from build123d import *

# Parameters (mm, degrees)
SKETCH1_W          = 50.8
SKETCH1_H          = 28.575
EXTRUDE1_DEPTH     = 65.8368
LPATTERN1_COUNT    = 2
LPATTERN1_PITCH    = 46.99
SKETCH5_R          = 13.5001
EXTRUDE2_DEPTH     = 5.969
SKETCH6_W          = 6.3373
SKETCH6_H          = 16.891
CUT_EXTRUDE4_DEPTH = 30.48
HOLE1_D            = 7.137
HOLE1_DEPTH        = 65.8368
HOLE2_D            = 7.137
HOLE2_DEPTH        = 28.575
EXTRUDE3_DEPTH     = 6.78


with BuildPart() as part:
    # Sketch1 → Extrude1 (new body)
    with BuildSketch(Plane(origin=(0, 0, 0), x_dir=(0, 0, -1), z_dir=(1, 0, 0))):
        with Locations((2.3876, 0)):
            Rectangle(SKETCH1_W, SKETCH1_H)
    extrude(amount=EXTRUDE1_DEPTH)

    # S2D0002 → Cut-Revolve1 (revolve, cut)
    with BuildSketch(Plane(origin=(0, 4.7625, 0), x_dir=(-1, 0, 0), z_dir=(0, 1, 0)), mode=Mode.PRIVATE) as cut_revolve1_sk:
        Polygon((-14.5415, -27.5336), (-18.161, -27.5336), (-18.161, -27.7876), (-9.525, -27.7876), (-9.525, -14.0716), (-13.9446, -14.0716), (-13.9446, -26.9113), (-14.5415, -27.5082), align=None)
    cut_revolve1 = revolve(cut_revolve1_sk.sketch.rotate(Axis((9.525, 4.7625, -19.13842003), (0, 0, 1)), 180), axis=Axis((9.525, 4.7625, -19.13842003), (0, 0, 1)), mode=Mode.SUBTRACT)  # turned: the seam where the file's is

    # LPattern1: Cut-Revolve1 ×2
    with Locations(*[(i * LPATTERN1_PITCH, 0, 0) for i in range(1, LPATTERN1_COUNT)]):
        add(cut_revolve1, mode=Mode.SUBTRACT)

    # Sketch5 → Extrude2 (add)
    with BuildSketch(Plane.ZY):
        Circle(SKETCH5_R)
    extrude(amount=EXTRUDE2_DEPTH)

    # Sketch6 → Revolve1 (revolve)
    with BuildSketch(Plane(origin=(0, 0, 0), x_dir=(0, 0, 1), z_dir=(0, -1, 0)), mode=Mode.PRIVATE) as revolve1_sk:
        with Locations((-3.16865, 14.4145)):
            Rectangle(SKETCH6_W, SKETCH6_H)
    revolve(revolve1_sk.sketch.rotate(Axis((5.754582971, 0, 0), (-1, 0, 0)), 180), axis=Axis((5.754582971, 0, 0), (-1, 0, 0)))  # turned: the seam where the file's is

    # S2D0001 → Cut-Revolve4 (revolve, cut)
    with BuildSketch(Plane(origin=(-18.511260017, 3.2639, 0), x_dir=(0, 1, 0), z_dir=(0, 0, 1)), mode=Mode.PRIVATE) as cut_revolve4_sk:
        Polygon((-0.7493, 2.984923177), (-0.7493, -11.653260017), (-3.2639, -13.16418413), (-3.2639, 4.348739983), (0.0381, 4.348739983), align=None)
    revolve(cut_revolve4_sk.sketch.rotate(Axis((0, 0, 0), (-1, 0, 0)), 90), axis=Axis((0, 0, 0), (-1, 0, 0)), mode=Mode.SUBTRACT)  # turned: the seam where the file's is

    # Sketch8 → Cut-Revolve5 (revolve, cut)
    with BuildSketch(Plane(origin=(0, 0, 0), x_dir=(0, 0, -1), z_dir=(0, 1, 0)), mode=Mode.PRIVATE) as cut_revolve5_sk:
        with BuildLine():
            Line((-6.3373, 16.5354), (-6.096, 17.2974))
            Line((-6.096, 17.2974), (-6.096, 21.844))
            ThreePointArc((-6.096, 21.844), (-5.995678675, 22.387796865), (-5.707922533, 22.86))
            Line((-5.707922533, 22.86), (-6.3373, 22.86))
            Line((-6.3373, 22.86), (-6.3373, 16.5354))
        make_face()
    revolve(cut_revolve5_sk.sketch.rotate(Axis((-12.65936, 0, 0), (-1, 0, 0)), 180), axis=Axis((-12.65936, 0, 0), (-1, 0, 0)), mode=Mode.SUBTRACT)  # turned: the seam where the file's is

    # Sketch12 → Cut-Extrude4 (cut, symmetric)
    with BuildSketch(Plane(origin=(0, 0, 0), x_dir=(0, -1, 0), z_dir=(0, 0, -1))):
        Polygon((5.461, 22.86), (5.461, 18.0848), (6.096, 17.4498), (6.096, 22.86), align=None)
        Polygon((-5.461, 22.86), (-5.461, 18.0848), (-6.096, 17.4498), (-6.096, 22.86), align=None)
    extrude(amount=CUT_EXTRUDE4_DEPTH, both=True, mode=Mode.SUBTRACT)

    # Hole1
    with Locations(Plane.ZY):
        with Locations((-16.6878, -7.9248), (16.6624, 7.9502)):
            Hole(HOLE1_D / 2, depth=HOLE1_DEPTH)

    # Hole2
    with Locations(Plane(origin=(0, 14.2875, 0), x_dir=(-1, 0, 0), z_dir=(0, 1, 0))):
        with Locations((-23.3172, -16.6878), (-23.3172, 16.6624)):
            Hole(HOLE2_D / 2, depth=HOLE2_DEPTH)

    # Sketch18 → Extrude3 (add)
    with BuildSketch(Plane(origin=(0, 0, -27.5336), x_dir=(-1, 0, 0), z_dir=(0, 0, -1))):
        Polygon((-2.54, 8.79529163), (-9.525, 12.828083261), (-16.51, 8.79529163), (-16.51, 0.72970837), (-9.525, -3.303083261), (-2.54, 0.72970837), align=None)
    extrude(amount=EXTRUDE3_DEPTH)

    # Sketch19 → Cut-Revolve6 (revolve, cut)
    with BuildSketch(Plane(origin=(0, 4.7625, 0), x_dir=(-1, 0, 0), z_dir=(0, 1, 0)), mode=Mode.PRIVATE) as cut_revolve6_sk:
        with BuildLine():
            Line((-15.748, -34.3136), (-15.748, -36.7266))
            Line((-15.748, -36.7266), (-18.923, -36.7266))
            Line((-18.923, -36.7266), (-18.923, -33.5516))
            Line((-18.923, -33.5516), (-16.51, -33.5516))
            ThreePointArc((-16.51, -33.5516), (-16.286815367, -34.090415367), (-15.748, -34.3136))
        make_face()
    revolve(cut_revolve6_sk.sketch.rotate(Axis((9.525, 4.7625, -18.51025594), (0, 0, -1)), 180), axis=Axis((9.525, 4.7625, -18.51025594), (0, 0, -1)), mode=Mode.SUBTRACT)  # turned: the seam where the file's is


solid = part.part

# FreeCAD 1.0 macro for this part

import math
import FreeCAD as App
import Part
import Sketcher

V = App.Vector
Q = App.Units.Quantity


def add_polygon(sketch, points):
    """Adds a closed chain of lines whose ends are joined by coincident constraints."""
    first, n = sketch.GeometryCount, len(points)
    for a, b in zip(points, points[1:] + points[:1]):
        sketch.addGeometry(Part.LineSegment(App.Vector(*a, 0), App.Vector(*b, 0)), False)
    for i in range(n):
        sketch.addConstraint(Sketcher.Constraint("Coincident", first + i, 2, first + (i + 1) % n, 1))

doc = App.newDocument("Part")
body = doc.addObject("PartDesign::Body", "Body")

sketch1 = body.newObject("Sketcher::SketchObject", "Sketch")
sketch1.AttachmentSupport = (doc.getObject("YZ_Plane"), [""])
sketch1.MapMode = "FlatFace"
add_polygon(sketch1, [(14.2875, 23.0124), (-14.2875, 23.0124), (-14.2875, -27.7876), (14.2875, -27.7876)])
sketch1.addConstraint(Sketcher.Constraint("Horizontal", 0))
sketch1.addConstraint(Sketcher.Constraint("Vertical", 1))
sketch1.addConstraint(Sketcher.Constraint("Horizontal", 2))
sketch1.addConstraint(Sketcher.Constraint("Vertical", 3))
sketch1.addConstraint(Sketcher.Constraint("DistanceY", 1, 2, 1, 1, Q("2 in")))
sketch1.addConstraint(Sketcher.Constraint("DistanceX", 0, 2, 0, 1, Q("1.125 in")))
sketch1.addConstraint(Sketcher.Constraint("DistanceX", 0, 2, -1, 1, Q("0.5625 in")))
sketch1.addConstraint(Sketcher.Constraint("DistanceY", -1, 1, 0, 2, Q("0.906 in")))
pad1 = body.newObject("PartDesign::Pad", "Pad")
pad1.Profile = sketch1
pad1.Length = Q("2.592 in")

sketch2 = body.newObject("Sketcher::SketchObject", "Sketch001")
sketch2.AttachmentSupport = (doc.getObject("XZ_Plane"), [""])
sketch2.MapMode = "FlatFace"
sketch2.AttachmentOffset = App.Placement(V(0, 0, -0.1875 * 25.4), App.Rotation())
add_polygon(sketch2, [(14.5415, -27.5336), (18.161, -27.5336), (18.161, -27.7876), (9.525, -27.7876), (9.525, -14.0716), (13.9446, -14.0716), (13.9446, -26.9113), (14.5415, -27.5082)])
sketch2.addGeometry(Part.LineSegment(V(9.525, -27.7876, 0), V(9.525, -14.0716, 0)), True)
sketch2.addConstraint(Sketcher.Constraint("Horizontal", 0))
sketch2.addConstraint(Sketcher.Constraint("Vertical", 1))
sketch2.addConstraint(Sketcher.Constraint("Horizontal", 2))
sketch2.addConstraint(Sketcher.Constraint("Vertical", 3))
sketch2.addConstraint(Sketcher.Constraint("Horizontal", 4))
sketch2.addConstraint(Sketcher.Constraint("Vertical", 5))
sketch2.addConstraint(Sketcher.Constraint("Vertical", 7))
sketch2.addConstraint(Sketcher.Constraint("Vertical", 8))
sketch2.addConstraint(Sketcher.Constraint("Coincident", 8, 1, 2, 2))
sketch2.addConstraint(Sketcher.Constraint("Horizontal", 4, 2, 8, 2))
sketch2.addConstraint(Sketcher.Constraint("Angle", 6, Q("-45 deg")))
sketch2.addConstraint(Sketcher.Constraint("DistanceX", 2, 2, 2, 1, Q("0.34 in")))
sketch2.addConstraint(Sketcher.Constraint("DistanceY", 1, 2, 1, 1, Q("0.01 in")))
sketch2.addConstraint(Sketcher.Constraint("DistanceY", 3, 1, 3, 2, Q("0.54 in")))
sketch2.addConstraint(Sketcher.Constraint("DistanceX", 4, 1, 4, 2, Q("0.174 in")))
sketch2.addConstraint(Sketcher.Constraint("DistanceY", 7, 2, 7, 1, Q("0.001 in")))
sketch2.addConstraint(Sketcher.Constraint("DistanceX", 0, 1, 0, 2, Q("0.1425 in")))
sketch2.addConstraint(Sketcher.Constraint("DistanceX", -1, 1, 0, 2, Q("0.715 in")))
sketch2.addConstraint(Sketcher.Constraint("DistanceY", 0, 2, -1, 1, Q("1.084 in")))
groove = body.newObject("PartDesign::Groove", "Groove")
groove.Profile = sketch2
groove.ReferenceAxis = (sketch2, ["Axis0"])
groove.Angle = 360
doc.recompute()

linearpattern = body.newObject("PartDesign::LinearPattern", "LinearPattern")
linearpattern.Originals = [groove]
linearpattern.Direction = (doc.getObject("X_Axis"), [""])
linearpattern.Mode = "offset"
linearpattern.Offset = Q("1.85 in")
linearpattern.Occurrences = 2
body.Tip = linearpattern

sketch3 = body.newObject("Sketcher::SketchObject", "Sketch002")
sketch3.AttachmentSupport = (doc.getObject("YZ_Plane"), [""])
sketch3.MapMode = "FlatFace"
sketch3.addGeometry(Part.Circle(V(0, 0, 0), V(0, 0, 1), 13.5001), False)
sketch3.addConstraint(Sketcher.Constraint("Coincident", 0, 3, -1, 1))
sketch3.addConstraint(Sketcher.Constraint("Diameter", 0, Q("1.063 in")))
pad2 = body.newObject("PartDesign::Pad", "Pad001")
pad2.Profile = sketch3
pad2.Length = Q("0.235 in")
pad2.Reversed = True

sketch4 = body.newObject("Sketcher::SketchObject", "Sketch003")
sketch4.AttachmentSupport = (doc.getObject("XZ_Plane"), [""])
sketch4.MapMode = "FlatFace"
add_polygon(sketch4, [(-22.86, -6.3373), (-5.969, -6.3373), (-5.969, 0), (-22.86, 0)])
sketch4.addConstraint(Sketcher.Constraint("Horizontal", 0))
sketch4.addConstraint(Sketcher.Constraint("Vertical", 1))
sketch4.addConstraint(Sketcher.Constraint("Horizontal", 2))
sketch4.addConstraint(Sketcher.Constraint("Vertical", 3))
sketch4.addConstraint(Sketcher.Constraint("PointOnObject", 1, 2, -1))
sketch4.addConstraint(Sketcher.Constraint("DistanceX", 2, 2, -1, 1, Q("0.9 in")))
sketch4.addConstraint(Sketcher.Constraint("DistanceX", 0, 1, 0, 2, Q("0.665 in")))
sketch4.addConstraint(Sketcher.Constraint("DistanceY", 1, 1, 1, 2, Q("0.2495 in")))
revolution = body.newObject("PartDesign::Revolution", "Revolution")
revolution.Profile = sketch4
revolution.ReferenceAxis = (sketch4, ["H_Axis"])
revolution.Angle = 360

sketch5 = body.newObject("Sketcher::SketchObject", "Sketch004")
sketch5.AttachmentSupport = (doc.getObject("XY_Plane"), [""])
sketch5.MapMode = "FlatFace"
add_polygon(sketch5, [(-6.858, 2.5146), (-21.496183, 2.5146), (-22.86, 3.302), (-22.86, 0), (-5.347076, 0)])
sketch5.addConstraint(Sketcher.Constraint("Horizontal", 0))
sketch5.addConstraint(Sketcher.Constraint("Vertical", 2))
sketch5.addConstraint(Sketcher.Constraint("Horizontal", 3))
sketch5.addConstraint(Sketcher.Constraint("PointOnObject", 2, 2, -1))
sketch5.addConstraint(Sketcher.Constraint("Angle", 1, Q("150 deg")))
sketch5.addConstraint(Sketcher.Constraint("Angle", 4, Q("121 deg")))
sketch5.addConstraint(Sketcher.Constraint("DistanceY", 2, 2, 2, 1, Q("0.13 in")))
sketch5.addConstraint(Sketcher.Constraint("DistanceX", 1, 2, -1, 1, Q("0.9 in")))
sketch5.addConstraint(Sketcher.Constraint("DistanceX", 4, 2, -1, 1, Q("0.27 in")))
sketch5.addConstraint(Sketcher.Constraint("Distance", 1, Q("0.062 in")))
groove2 = body.newObject("PartDesign::Groove", "Groove001")
groove2.Profile = sketch5
groove2.ReferenceAxis = (sketch5, ["H_Axis"])
groove2.Angle = 360

sketch6 = body.newObject("Sketcher::SketchObject", "Sketch005")
sketch6.AttachmentSupport = (doc.getObject("XZ_Plane"), [""])
sketch6.MapMode = "FlatFace"
sketch6.addGeometry(Part.LineSegment(V(-16.5354, 6.3373, 0), V(-17.2974, 6.096, 0)), False)
sketch6.addGeometry(Part.LineSegment(V(-17.2974, 6.096, 0), V(-21.844, 6.096, 0)), False)
sketch6.addGeometry(Part.ArcOfCircle(Part.Circle(V(-21.844, 4.572, 0), V(0, 0, 1), 1.524), math.radians(90), math.radians(131.810315)), False)
sketch6.addGeometry(Part.LineSegment(V(-22.86, 5.707923, 0), V(-22.86, 6.3373, 0)), False)
sketch6.addGeometry(Part.LineSegment(V(-22.86, 6.3373, 0), V(-16.5354, 6.3373, 0)), False)
sketch6.addConstraint(Sketcher.Constraint("Coincident", 0, 2, 1, 1))
sketch6.addConstraint(Sketcher.Constraint("Tangent", 1, 2, 2, 1))
sketch6.addConstraint(Sketcher.Constraint("Coincident", 2, 2, 3, 1))
sketch6.addConstraint(Sketcher.Constraint("Coincident", 3, 2, 4, 1))
sketch6.addConstraint(Sketcher.Constraint("Coincident", 4, 2, 0, 1))
sketch6.addConstraint(Sketcher.Constraint("Horizontal", 1))
sketch6.addConstraint(Sketcher.Constraint("Vertical", 3))
sketch6.addConstraint(Sketcher.Constraint("Horizontal", 4))
sketch6.addConstraint(Sketcher.Constraint("Radius", 2, Q("0.06 in")))
sketch6.addConstraint(Sketcher.Constraint("DistanceX", 2, 2, -1, 1, Q("0.9 in")))
sketch6.addConstraint(Sketcher.Constraint("DistanceX", 1, 2, 1, 1, Q("0.179 in")))
sketch6.addConstraint(Sketcher.Constraint("DistanceX", 4, 1, 4, 2, Q("0.249 in")))
sketch6.addConstraint(Sketcher.Constraint("DistanceX", 2, 3, -1, 1, Q("0.86 in")))
sketch6.addConstraint(Sketcher.Constraint("DistanceY", -1, 1, 2, 3, Q("0.18 in")))
sketch6.addConstraint(Sketcher.Constraint("DistanceY", -1, 1, 3, 2, Q("0.2495 in")))
groove3 = body.newObject("PartDesign::Groove", "Groove002")
groove3.Profile = sketch6
groove3.ReferenceAxis = (sketch6, ["H_Axis"])
groove3.Angle = 360

sketch7 = body.newObject("Sketcher::SketchObject", "Sketch006")
sketch7.AttachmentSupport = (doc.getObject("XY_Plane"), [""])
sketch7.MapMode = "FlatFace"
add_polygon(sketch7, [(-22.86, -5.461), (-18.0848, -5.461), (-17.4498, -6.096), (-22.86, -6.096)])
add_polygon(sketch7, [(-18.0848, 5.461), (-22.86, 5.461), (-22.86, 6.096), (-17.4498, 6.096)])
sketch7.addConstraint(Sketcher.Constraint("Horizontal", 0))
sketch7.addConstraint(Sketcher.Constraint("Horizontal", 2))
sketch7.addConstraint(Sketcher.Constraint("Vertical", 3))
sketch7.addConstraint(Sketcher.Constraint("Horizontal", 4))
sketch7.addConstraint(Sketcher.Constraint("Vertical", 5))
sketch7.addConstraint(Sketcher.Constraint("Horizontal", 6))
sketch7.addConstraint(Sketcher.Constraint("Symmetric", 3, 2, 4, 2, -1))
sketch7.addConstraint(Sketcher.Constraint("Symmetric", 1, 2, 6, 2, -1))
sketch7.addConstraint(Sketcher.Constraint("Perpendicular", 1, 7))
sketch7.addConstraint(Sketcher.Constraint("Vertical", 0, 2, 7, 2))
sketch7.addConstraint(Sketcher.Constraint("DistanceX", 2, 2, -1, 1, Q("0.9 in")))
sketch7.addConstraint(Sketcher.Constraint("DistanceX", 0, 1, 0, 2, Q("0.188 in")))
sketch7.addConstraint(Sketcher.Constraint("DistanceX", 2, 2, 2, 1, Q("0.213 in")))
sketch7.addConstraint(Sketcher.Constraint("DistanceY", 1, 2, -1, 1, Q("0.24 in")))
pocket1 = body.newObject("PartDesign::Pocket", "Pocket")
pocket1.Profile = sketch7
pocket1.Length = Q("2.4 in")
pocket1.Midplane = True

sketch8 = body.newObject("Sketcher::SketchObject", "Sketch007")
sketch8.AttachmentSupport = (doc.getObject("YZ_Plane"), [""])
sketch8.MapMode = "FlatFace"
sketch8.addGeometry(Part.Circle(V(-7.9248, -16.6878, 0), V(0, 0, 1), 3.5685), False)
sketch8.addGeometry(Part.Circle(V(7.9502, 16.6624, 0), V(0, 0, 1), 3.5685), False)
sketch8.addConstraint(Sketcher.Constraint("Equal", 0, 1))
sketch8.addConstraint(Sketcher.Constraint("Diameter", 0, Q("7.137 mm")))
sketch8.addConstraint(Sketcher.Constraint("DistanceX", 0, 3, -1, 1, Q("0.312 in")))
sketch8.addConstraint(Sketcher.Constraint("DistanceY", 0, 3, -1, 1, Q("0.657 in")))
sketch8.addConstraint(Sketcher.Constraint("DistanceX", -1, 1, 1, 3, Q("0.313 in")))
sketch8.addConstraint(Sketcher.Constraint("DistanceY", -1, 1, 1, 3, Q("0.656 in")))
doc.recompute()
hole = body.newObject("PartDesign::Hole", "Hole")
hole.Profile = sketch8
hole.ThreadType = "None"
hole.Diameter = 7.137
hole.DepthType = "Dimension"
hole.Depth = Q("2.592 in")
hole.DrillPoint = "Flat"
hole.Reversed = True

sketch9 = body.newObject("Sketcher::SketchObject", "Sketch008")
sketch9.AttachmentSupport = (doc.getObject("XZ_Plane"), [""])
sketch9.MapMode = "FlatFace"
sketch9.AttachmentOffset = App.Placement(V(0, 0, -0.5625 * 25.4), App.Rotation())
sketch9.addGeometry(Part.Circle(V(23.3172, -16.6878, 0), V(0, 0, 1), 3.5685), False)
sketch9.addGeometry(Part.Circle(V(23.3172, 16.6624, 0), V(0, 0, 1), 3.5685), False)
sketch9.addConstraint(Sketcher.Constraint("Equal", 0, 1))
sketch9.addConstraint(Sketcher.Constraint("Vertical", 0, 3, 1, 3))
sketch9.addConstraint(Sketcher.Constraint("Diameter", 0, Q("7.137 mm")))
sketch9.addConstraint(Sketcher.Constraint("DistanceX", -1, 1, 0, 3, Q("0.918 in")))
sketch9.addConstraint(Sketcher.Constraint("DistanceY", 0, 3, -1, 1, Q("0.657 in")))
sketch9.addConstraint(Sketcher.Constraint("DistanceY", -1, 1, 1, 3, Q("0.656 in")))
doc.recompute()
hole2 = body.newObject("PartDesign::Hole", "Hole001")
hole2.Profile = sketch9
hole2.ThreadType = "None"
hole2.Diameter = 7.137
hole2.DepthType = "Dimension"
hole2.Depth = Q("1.125 in")
hole2.DrillPoint = "Flat"
hole2.Reversed = True

sketch10 = body.newObject("Sketcher::SketchObject", "Sketch009")
sketch10.AttachmentSupport = (doc.getObject("XY_Plane"), [""])
sketch10.MapMode = "FlatFace"
sketch10.AttachmentOffset = App.Placement(V(0, 0, -1.084 * 25.4), App.Rotation())
add_polygon(sketch10, [(2.54, 8.795292), (9.525, 12.828083), (16.51, 8.795292), (16.51, 0.729708), (9.525, -3.303083), (2.54, 0.729708)])
sketch10.addConstraint(Sketcher.Constraint("Vertical", 2))
sketch10.addConstraint(Sketcher.Constraint("Vertical", 5))
sketch10.addConstraint(Sketcher.Constraint("Parallel", 0, 3))
sketch10.addConstraint(Sketcher.Constraint("Parallel", 1, 4))
sketch10.addConstraint(Sketcher.Constraint("Horizontal", 2, 2, 4, 2))
sketch10.addConstraint(Sketcher.Constraint("Horizontal", 1, 2, 5, 2))
sketch10.addConstraint(Sketcher.Constraint("Vertical", 0, 2, 3, 2))
sketch10.addConstraint(Sketcher.Constraint("Angle", 0, Q("30 deg")))
sketch10.addConstraint(Sketcher.Constraint("DistanceX", -1, 1, 4, 2, Q("0.1 in")))
sketch10.addConstraint(Sketcher.Constraint("DistanceX", -1, 1, 1, 2, Q("0.65 in")))
sketch10.addConstraint(Sketcher.Constraint("DistanceY", 2, 2, 2, 1, Q("8.065583 mm")))
sketch10.addConstraint(Sketcher.Constraint("DistanceY", -1, 1, 1, 2, Q("8.795292 mm")))
pad3 = body.newObject("PartDesign::Pad", "Pad002")
pad3.Profile = sketch10
pad3.Length = 6.78
pad3.Reversed = True

sketch11 = body.newObject("Sketcher::SketchObject", "Sketch010")
sketch11.AttachmentSupport = (doc.getObject("XZ_Plane"), [""])
sketch11.MapMode = "FlatFace"
sketch11.AttachmentOffset = App.Placement(V(0, 0, -0.1875 * 25.4), App.Rotation())
sketch11.addGeometry(Part.LineSegment(V(15.748, -36.7266, 0), V(15.748, -34.3136, 0)), False)
sketch11.addGeometry(Part.ArcOfCircle(Part.Circle(V(15.748, -33.5516, 0), V(0, 0, 1), 0.762), math.radians(-90), math.radians(0)), False)
sketch11.addGeometry(Part.LineSegment(V(16.51, -33.5516, 0), V(18.923, -33.5516, 0)), False)
sketch11.addGeometry(Part.LineSegment(V(18.923, -33.5516, 0), V(18.923, -36.7266, 0)), False)
sketch11.addGeometry(Part.LineSegment(V(18.923, -36.7266, 0), V(15.748, -36.7266, 0)), False)
sketch11.addGeometry(Part.LineSegment(V(9.525, -33.5516, 0), V(9.525, -36.7266, 0)), True)
sketch11.addConstraint(Sketcher.Constraint("Coincident", 0, 2, 1, 1))
sketch11.addConstraint(Sketcher.Constraint("Coincident", 1, 2, 2, 1))
sketch11.addConstraint(Sketcher.Constraint("Coincident", 2, 2, 3, 1))
sketch11.addConstraint(Sketcher.Constraint("Coincident", 3, 2, 4, 1))
sketch11.addConstraint(Sketcher.Constraint("Coincident", 4, 2, 0, 1))
sketch11.addConstraint(Sketcher.Constraint("Vertical", 0))
sketch11.addConstraint(Sketcher.Constraint("Horizontal", 2))
sketch11.addConstraint(Sketcher.Constraint("Vertical", 3))
sketch11.addConstraint(Sketcher.Constraint("Horizontal", 4))
sketch11.addConstraint(Sketcher.Constraint("Vertical", 5))
sketch11.addConstraint(Sketcher.Constraint("Horizontal", 2, 2, 5, 1))
sketch11.addConstraint(Sketcher.Constraint("Horizontal", 4, 2, 5, 2))
sketch11.addConstraint(Sketcher.Constraint("Vertical", 1, 3, 0, 2))
sketch11.addConstraint(Sketcher.Constraint("Equal", 2, 0))
sketch11.addConstraint(Sketcher.Constraint("Equal", 4, 3))
sketch11.addConstraint(Sketcher.Constraint("Radius", 1, Q("0.03 in")))
sketch11.addConstraint(Sketcher.Constraint("DistanceX", 2, 1, 2, 2, Q("0.095 in")))
sketch11.addConstraint(Sketcher.Constraint("DistanceX", -1, 1, 1, 3, Q("0.62 in")))
sketch11.addConstraint(Sketcher.Constraint("DistanceX", 5, 1, 2, 2, Q("0.37 in")))
sketch11.addConstraint(Sketcher.Constraint("DistanceY", 1, 3, -1, 1, Q("33.5516 mm")))
groove4 = body.newObject("PartDesign::Groove", "Groove003")
groove4.Profile = sketch11
groove4.ReferenceAxis = (sketch11, ["Axis0"])
groove4.Angle = 360

doc.recompute()
